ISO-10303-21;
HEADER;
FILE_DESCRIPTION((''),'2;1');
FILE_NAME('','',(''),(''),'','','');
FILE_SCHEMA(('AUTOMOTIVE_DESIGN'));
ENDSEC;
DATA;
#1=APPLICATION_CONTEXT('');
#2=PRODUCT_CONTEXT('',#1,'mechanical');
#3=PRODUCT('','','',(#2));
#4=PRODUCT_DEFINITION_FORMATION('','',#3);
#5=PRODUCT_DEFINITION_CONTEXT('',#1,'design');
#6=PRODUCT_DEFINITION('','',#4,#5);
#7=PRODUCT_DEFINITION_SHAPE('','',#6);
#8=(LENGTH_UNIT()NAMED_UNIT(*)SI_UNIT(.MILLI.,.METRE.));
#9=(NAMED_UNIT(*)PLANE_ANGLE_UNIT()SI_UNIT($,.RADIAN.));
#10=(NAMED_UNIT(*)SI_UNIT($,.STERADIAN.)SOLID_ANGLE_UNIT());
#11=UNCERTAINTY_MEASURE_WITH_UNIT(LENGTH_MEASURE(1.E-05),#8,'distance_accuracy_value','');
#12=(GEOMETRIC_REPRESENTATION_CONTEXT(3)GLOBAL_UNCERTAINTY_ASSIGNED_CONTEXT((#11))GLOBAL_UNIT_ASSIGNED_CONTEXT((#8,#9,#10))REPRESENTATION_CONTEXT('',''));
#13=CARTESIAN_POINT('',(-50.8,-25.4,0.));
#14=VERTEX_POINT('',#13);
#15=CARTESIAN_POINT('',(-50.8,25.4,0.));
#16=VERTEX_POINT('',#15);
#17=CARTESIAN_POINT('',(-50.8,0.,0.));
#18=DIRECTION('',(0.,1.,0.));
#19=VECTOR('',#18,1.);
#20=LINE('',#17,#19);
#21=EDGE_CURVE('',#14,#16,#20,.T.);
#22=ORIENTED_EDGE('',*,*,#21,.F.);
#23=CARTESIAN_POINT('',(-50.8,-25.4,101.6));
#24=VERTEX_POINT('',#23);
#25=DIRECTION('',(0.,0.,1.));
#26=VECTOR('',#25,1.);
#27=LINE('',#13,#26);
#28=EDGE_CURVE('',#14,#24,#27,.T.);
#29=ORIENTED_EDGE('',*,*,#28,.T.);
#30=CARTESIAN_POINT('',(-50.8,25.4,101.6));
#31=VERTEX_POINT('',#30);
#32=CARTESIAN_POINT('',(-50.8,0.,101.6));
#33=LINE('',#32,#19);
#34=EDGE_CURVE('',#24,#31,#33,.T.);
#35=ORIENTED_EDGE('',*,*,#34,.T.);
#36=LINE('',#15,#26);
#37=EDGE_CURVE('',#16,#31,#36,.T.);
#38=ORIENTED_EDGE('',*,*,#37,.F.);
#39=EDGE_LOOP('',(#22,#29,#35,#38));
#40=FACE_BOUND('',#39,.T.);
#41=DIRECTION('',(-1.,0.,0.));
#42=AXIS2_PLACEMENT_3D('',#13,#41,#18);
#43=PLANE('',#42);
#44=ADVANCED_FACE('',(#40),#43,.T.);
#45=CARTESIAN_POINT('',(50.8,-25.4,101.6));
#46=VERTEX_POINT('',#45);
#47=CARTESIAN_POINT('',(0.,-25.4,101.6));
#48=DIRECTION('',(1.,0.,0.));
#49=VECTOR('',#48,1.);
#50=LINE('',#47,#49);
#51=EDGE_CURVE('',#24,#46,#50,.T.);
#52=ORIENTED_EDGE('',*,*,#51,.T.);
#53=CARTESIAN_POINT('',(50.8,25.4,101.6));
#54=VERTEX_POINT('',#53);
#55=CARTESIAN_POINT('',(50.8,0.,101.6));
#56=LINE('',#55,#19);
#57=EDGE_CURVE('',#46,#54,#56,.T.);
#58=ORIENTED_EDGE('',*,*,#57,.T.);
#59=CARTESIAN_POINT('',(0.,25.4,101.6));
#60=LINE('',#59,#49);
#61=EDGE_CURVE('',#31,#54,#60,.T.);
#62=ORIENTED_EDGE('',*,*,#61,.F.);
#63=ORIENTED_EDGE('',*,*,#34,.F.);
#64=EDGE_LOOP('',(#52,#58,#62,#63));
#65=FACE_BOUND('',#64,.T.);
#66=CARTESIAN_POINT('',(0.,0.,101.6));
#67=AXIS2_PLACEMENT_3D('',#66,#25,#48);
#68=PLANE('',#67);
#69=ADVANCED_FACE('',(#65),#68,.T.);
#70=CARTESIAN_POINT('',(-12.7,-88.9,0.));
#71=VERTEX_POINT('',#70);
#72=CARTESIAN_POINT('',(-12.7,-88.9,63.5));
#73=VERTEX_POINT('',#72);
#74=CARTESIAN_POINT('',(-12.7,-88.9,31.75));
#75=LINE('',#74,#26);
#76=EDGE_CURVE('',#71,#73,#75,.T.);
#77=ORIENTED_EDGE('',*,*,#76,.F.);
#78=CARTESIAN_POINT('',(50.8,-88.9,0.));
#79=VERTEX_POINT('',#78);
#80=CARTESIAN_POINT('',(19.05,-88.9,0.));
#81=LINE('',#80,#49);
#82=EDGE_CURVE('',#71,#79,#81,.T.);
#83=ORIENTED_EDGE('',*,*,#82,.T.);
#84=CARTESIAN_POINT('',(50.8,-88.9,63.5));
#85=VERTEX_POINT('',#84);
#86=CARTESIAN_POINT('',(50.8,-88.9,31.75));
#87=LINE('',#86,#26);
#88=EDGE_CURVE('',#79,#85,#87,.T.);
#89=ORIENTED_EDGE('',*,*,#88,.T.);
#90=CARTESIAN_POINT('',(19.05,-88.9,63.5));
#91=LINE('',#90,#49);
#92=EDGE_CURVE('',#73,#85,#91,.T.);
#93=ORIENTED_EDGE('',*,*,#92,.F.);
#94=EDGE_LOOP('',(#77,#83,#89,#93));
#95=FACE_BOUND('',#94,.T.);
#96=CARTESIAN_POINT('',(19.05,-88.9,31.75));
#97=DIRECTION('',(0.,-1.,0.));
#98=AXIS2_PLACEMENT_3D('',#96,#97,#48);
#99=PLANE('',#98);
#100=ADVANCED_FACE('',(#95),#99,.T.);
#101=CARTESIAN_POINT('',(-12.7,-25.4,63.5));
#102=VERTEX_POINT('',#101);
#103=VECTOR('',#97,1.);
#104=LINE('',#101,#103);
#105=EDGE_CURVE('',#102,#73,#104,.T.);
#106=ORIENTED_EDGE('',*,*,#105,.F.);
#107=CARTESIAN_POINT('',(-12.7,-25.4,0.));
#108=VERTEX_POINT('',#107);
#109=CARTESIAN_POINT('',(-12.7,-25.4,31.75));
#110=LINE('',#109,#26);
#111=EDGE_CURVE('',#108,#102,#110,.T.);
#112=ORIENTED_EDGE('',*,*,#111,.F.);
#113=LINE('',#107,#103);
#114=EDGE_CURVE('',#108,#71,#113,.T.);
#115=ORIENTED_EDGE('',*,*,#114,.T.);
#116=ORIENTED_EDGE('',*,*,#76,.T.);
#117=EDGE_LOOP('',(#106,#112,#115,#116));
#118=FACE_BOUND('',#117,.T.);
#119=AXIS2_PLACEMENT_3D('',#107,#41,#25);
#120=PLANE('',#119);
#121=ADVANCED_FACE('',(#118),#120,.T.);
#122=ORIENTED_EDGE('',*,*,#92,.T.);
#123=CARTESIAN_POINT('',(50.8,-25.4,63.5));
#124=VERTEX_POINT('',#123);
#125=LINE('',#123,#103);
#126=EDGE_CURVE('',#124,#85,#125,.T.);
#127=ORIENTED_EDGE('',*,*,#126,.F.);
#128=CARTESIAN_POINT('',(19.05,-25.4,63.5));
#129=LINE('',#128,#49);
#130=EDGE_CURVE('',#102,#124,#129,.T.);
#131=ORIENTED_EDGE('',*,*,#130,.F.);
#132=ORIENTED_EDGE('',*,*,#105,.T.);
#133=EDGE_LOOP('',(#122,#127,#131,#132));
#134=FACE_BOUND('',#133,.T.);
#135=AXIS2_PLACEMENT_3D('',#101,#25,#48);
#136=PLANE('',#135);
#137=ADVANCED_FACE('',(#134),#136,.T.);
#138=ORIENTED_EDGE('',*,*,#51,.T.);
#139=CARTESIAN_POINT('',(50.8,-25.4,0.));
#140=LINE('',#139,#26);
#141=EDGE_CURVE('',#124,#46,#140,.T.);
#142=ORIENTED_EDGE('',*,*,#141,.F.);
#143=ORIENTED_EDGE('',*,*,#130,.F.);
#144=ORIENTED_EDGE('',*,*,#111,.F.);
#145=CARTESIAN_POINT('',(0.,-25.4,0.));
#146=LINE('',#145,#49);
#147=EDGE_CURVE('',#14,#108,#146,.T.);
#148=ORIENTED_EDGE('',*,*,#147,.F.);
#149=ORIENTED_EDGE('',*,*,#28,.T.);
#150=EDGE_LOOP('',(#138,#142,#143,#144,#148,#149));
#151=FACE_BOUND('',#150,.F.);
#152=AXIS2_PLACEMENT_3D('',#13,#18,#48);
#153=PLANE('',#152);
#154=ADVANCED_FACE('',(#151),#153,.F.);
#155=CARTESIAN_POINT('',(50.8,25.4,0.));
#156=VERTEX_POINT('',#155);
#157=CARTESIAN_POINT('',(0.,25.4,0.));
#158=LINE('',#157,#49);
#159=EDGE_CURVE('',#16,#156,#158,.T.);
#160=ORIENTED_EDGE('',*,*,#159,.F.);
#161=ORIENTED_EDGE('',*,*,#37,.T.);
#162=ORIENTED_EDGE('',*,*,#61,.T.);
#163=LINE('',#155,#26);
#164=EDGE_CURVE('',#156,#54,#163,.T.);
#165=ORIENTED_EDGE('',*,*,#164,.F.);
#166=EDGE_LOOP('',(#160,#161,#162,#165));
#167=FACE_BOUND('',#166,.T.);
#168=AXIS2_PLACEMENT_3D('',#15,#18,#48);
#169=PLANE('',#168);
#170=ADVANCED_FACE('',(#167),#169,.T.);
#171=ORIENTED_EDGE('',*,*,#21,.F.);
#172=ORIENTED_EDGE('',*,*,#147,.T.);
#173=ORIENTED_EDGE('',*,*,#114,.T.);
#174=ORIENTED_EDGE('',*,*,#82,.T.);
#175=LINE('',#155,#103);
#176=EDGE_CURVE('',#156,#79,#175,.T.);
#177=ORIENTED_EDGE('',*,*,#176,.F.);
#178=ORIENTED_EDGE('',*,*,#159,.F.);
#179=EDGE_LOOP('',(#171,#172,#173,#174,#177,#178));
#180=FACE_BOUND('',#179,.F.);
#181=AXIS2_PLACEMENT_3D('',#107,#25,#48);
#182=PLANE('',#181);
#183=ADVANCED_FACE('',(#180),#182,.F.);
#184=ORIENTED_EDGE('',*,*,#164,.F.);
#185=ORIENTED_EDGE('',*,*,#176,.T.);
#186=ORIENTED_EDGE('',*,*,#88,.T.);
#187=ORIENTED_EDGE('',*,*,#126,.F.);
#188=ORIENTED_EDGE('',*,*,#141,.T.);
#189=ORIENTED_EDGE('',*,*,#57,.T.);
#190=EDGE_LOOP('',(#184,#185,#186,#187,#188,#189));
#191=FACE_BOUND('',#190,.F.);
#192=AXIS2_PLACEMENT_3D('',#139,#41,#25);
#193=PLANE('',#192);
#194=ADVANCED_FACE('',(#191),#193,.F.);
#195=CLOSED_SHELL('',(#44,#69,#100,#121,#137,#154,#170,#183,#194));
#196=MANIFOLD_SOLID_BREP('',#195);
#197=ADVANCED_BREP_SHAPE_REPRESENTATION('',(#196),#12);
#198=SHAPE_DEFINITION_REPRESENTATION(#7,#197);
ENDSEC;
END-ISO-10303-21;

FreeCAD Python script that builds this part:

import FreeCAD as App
import Part
import Sketcher
Q = App.Units.Quantity


def add_polygon(sketch, points):
    """Adds a closed chain of lines whose ends are joined by coincident constraints."""
    first, n = sketch.GeometryCount, len(points)
    for a, b in zip(points, points[1:] + points[:1]):
        sketch.addGeometry(Part.LineSegment(App.Vector(*a, 0), App.Vector(*b, 0)), False)
    for i in range(n):
        sketch.addConstraint(Sketcher.Constraint("Coincident", first + i, 2, first + (i + 1) % n, 1))

doc = App.newDocument("Part")
body = doc.addObject("PartDesign::Body", "Body")

# Sketch on XY plane
sketch1 = body.newObject("Sketcher::SketchObject", "Sketch")
sketch1.AttachmentSupport = (doc.getObject("XY_Plane"), [""])
sketch1.MapMode = "FlatFace"
add_polygon(sketch1, [(-50.8, 25.4), (-50.8, -25.4), (50.8, -25.4), (50.8, 25.4)])  # lines 0-3
sketch1.addConstraint(Sketcher.Constraint("Vertical", 0))
sketch1.addConstraint(Sketcher.Constraint("Horizontal", 1))
sketch1.addConstraint(Sketcher.Constraint("Vertical", 2))
sketch1.addConstraint(Sketcher.Constraint("Horizontal", 3))
sketch1.addConstraint(Sketcher.Constraint("Symmetric", 0, 2, 2, 2, -1, 1))
sketch1.addConstraint(Sketcher.Constraint("DistanceX", 1, 1, 1, 2, Q("4 in")))
sketch1.addConstraint(Sketcher.Constraint("DistanceY", 0, 2, 0, 1, Q("2 in")))
pad1 = body.newObject("PartDesign::Pad", "Pad")
pad1.Profile = sketch1
pad1.Length = Q("4 in")

# Sketch on XZ plane
sketch2 = body.newObject("Sketcher::SketchObject", "Sketch001")
sketch2.AttachmentSupport = (doc.getObject("XZ_Plane"), [""])
sketch2.MapMode = "FlatFace"
sketch2.AttachmentOffset = App.Placement(App.Vector(0, 0, 1 * 25.4), App.Rotation())
add_polygon(sketch2, [(-12.7, 63.5), (-12.7, 0), (50.8, 0), (50.8, 63.5)])  # lines 0-3
sketch2.addConstraint(Sketcher.Constraint("Vertical", 0))
sketch2.addConstraint(Sketcher.Constraint("Horizontal", 1))
sketch2.addConstraint(Sketcher.Constraint("Vertical", 2))
sketch2.addConstraint(Sketcher.Constraint("Horizontal", 3))
sketch2.addConstraint(Sketcher.Constraint("PointOnObject", 0, 2, -1))
sketch2.addConstraint(Sketcher.Constraint("Equal", 3, 0))
sketch2.addConstraint(Sketcher.Constraint("DistanceX", 1, 1, 1, 2, Q("2.5 in")))
sketch2.addConstraint(Sketcher.Constraint("DistanceX", -1, 1, 1, 2, Q("2 in")))
pad2 = body.newObject("PartDesign::Pad", "Pad001")
pad2.Profile = sketch2
pad2.Length = Q("2.5 in")

doc.recompute()
